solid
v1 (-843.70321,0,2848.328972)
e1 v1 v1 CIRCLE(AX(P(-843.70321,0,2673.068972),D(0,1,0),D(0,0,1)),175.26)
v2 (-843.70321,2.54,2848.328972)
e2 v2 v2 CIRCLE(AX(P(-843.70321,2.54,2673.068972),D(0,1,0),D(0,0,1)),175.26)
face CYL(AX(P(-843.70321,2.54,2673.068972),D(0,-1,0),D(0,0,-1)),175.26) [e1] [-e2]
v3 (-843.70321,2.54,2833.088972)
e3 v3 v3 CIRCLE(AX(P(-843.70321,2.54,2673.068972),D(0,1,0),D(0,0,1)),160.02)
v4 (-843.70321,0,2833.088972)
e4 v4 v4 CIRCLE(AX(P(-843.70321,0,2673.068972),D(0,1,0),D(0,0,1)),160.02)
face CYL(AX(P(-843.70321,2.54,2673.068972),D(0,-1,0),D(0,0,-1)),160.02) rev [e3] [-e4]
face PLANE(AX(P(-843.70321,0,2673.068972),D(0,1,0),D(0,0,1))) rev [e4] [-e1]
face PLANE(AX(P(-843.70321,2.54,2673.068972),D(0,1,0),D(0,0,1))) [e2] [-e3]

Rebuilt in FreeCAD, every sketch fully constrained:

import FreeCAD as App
import Part
import Sketcher

V = App.Vector
Q = App.Units.Quantity

doc = App.newDocument("Part")
body = doc.addObject("PartDesign::Body", "Body")

sketch1 = body.newObject("Sketcher::SketchObject", "Sketch")
sketch1.AttachmentSupport = (doc.getObject("XZ_Plane"), [""])
sketch1.MapMode = "FlatFace"
sketch1.addGeometry([
    Part.Circle(V(-843.70321, 2673.068972, 0), V(0, 0, 1), 175.26),
    Part.Circle(V(-843.70321, 2673.068972, 0), V(0, 0, 1), 160.02),
], False)
sketch1.addConstraint([
    Sketcher.Constraint("Coincident", 1, 3, 0, 3),
    Sketcher.Constraint("Diameter", 0, Q("13.8 in")),
    Sketcher.Constraint("Diameter", 1, Q("12.6 in")),
    Sketcher.Constraint("DistanceX", 0, 3, -1, 1, 843.70321),
    Sketcher.Constraint("DistanceY", -1, 1, 0, 3, 2673.068972),
])
pad1 = body.newObject("PartDesign::Pad", "Pad")
pad1.Profile = sketch1
pad1.Length = Q("0.1 in")
pad1.Reversed = True

doc.recompute()
